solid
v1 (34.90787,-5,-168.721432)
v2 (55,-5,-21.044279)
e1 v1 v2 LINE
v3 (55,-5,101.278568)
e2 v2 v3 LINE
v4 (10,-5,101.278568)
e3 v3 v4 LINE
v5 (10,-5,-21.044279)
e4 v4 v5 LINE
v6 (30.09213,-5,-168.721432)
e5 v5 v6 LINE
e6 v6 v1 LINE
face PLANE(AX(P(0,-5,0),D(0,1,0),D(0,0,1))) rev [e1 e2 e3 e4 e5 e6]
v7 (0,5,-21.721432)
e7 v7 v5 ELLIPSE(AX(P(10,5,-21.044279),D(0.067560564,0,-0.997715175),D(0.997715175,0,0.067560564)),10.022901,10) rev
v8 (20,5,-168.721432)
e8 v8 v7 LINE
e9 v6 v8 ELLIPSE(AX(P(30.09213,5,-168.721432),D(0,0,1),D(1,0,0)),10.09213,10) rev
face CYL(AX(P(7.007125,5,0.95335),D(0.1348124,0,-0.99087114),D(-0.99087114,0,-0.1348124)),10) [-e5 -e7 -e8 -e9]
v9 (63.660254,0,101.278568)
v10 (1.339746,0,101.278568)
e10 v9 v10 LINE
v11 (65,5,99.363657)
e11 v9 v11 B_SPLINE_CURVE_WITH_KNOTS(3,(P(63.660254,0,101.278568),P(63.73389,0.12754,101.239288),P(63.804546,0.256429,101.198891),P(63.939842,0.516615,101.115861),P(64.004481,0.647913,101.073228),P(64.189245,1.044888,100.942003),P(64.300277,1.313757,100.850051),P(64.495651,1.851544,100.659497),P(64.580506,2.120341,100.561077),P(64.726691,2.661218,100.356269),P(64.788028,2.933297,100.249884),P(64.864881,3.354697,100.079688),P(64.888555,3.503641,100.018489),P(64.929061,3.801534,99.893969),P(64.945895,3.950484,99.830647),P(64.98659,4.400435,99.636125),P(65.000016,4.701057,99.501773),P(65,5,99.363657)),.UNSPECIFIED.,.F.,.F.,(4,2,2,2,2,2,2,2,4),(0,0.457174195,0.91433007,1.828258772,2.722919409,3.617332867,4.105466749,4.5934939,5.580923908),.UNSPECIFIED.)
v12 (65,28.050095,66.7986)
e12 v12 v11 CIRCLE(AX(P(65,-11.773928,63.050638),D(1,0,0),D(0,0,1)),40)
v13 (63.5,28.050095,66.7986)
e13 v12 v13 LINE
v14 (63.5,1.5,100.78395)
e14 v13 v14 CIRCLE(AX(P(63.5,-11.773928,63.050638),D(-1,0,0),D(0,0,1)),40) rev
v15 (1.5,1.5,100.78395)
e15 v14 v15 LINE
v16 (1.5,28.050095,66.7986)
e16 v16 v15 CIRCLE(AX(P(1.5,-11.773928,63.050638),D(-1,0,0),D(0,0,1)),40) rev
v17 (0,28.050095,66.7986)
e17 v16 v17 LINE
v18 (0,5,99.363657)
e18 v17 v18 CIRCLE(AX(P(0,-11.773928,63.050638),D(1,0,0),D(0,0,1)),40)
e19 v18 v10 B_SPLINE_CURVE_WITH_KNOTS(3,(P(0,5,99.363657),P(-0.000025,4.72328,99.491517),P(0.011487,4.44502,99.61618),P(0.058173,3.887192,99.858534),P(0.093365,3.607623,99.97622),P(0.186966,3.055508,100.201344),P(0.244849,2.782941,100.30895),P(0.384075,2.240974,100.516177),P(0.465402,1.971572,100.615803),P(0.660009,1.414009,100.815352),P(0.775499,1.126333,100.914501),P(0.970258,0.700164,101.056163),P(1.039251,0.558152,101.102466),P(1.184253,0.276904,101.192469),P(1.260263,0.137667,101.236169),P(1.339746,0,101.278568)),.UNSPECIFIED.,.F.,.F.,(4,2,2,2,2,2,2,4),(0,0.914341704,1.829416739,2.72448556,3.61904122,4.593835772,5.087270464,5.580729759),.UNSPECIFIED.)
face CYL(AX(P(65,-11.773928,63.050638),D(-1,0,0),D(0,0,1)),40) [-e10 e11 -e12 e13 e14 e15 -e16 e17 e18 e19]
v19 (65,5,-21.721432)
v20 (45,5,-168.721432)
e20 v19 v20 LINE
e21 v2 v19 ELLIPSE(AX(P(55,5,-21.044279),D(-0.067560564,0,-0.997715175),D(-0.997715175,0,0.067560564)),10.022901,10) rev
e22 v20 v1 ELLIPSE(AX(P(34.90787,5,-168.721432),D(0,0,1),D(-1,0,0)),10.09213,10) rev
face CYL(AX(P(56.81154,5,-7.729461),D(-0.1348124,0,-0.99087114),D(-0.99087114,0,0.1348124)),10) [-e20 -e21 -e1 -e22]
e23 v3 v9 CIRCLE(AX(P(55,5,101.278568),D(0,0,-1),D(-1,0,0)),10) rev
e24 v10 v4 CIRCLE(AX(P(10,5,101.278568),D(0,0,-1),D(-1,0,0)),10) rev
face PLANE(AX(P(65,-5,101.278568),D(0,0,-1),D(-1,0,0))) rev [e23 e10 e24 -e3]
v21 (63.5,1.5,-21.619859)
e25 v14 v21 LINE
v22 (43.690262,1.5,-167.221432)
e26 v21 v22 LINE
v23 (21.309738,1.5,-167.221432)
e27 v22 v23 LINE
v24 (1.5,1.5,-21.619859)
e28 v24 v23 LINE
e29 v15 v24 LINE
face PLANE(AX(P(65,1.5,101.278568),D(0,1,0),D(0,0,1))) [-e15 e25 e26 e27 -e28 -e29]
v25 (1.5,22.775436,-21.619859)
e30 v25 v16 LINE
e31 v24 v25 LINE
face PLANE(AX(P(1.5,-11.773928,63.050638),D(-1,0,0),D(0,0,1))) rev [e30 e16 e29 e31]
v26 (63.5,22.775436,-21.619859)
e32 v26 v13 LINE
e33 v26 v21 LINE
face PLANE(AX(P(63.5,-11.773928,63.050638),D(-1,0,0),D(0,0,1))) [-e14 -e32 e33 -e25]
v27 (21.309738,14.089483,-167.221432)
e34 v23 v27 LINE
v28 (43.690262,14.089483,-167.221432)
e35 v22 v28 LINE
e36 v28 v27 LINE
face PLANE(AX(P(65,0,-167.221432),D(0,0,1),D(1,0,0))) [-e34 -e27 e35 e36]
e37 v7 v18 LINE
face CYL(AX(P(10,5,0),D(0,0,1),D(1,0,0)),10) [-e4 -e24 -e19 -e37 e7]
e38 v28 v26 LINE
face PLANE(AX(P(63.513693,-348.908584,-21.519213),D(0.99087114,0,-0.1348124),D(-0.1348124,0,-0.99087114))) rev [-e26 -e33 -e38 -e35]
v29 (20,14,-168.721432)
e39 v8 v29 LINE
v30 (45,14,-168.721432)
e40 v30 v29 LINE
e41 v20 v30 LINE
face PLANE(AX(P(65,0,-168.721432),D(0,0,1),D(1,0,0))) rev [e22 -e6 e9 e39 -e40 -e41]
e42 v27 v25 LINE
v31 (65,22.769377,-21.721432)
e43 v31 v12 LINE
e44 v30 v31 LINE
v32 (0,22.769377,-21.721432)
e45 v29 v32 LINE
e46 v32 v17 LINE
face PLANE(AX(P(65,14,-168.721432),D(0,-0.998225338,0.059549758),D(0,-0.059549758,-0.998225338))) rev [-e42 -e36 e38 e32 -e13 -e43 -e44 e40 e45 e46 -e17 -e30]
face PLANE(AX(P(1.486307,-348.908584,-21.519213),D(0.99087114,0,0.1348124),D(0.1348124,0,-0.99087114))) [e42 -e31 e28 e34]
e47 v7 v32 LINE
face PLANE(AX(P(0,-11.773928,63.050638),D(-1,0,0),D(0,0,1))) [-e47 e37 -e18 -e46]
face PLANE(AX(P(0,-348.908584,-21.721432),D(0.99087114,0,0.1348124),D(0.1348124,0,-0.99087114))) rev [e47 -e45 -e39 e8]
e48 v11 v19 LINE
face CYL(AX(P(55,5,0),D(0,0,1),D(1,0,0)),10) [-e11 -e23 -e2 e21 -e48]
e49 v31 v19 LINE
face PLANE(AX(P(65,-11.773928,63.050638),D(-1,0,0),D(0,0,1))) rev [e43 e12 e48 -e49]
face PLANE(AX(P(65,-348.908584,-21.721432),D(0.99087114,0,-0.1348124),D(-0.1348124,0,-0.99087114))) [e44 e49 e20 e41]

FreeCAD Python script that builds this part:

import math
import FreeCAD as App
import Part
import Sketcher

V = App.Vector
Q = App.Units.Quantity


def edges_at(feature, points):
    """Names of the edges that pass closest to the given points."""
    edges = feature.Shape.Edges
    near = lambda p: min(range(len(edges)), key=lambda i: edges[i].distToShape(Part.Vertex(*p))[0])
    return sorted({f"Edge{near(p) + 1}" for p in points})


def faces_at(feature, points):
    """Names of the faces that lie closest to the given points."""
    faces = feature.Shape.Faces
    near = lambda p: min(range(len(faces)), key=lambda i: faces[i].distToShape(Part.Vertex(*p))[0])
    return sorted({f"Face{near(p) + 1}" for p in points})


def add_polygon(sketch, points):
    """Adds a closed chain of lines whose ends are joined by coincident constraints."""
    first, n = sketch.GeometryCount, len(points)
    for a, b in zip(points, points[1:] + points[:1]):
        sketch.addGeometry(Part.LineSegment(App.Vector(*a, 0), App.Vector(*b, 0)), False)
    for i in range(n):
        sketch.addConstraint(Sketcher.Constraint("Coincident", first + i, 2, first + (i + 1) % n, 1))

doc = App.newDocument("Part")
body = doc.addObject("PartDesign::Body", "Body")

# Sketch on YZ plane
sketch1 = body.newObject("Sketcher::SketchObject", "Sketch")
sketch1.AttachmentSupport = (doc.getObject("YZ_Plane"), [""])
sketch1.MapMode = "FlatFace"
sketch1.addGeometry([
    Part.LineSegment(V(0, 101.278568, 0), V(0, -168.721432, 0)),
    Part.LineSegment(V(0, -168.721432, 0), V(14, -168.721432, 0)),
    Part.LineSegment(V(14, -168.721432, 0), V(28.050095, 66.7986, 0)),
    Part.ArcOfCircle(Part.Circle(V(-11.773928, 63.050638, 0), V(0, 0, 1), 40), math.radians(5.376446), math.radians(72.881544)),
], False)
sketch1.addConstraint([
    Sketcher.Constraint("Coincident", 0, 2, 1, 1),
    Sketcher.Constraint("Coincident", 1, 2, 2, 1),
    Sketcher.Constraint("Coincident", 2, 2, 3, 1),
    Sketcher.Constraint("Coincident", 3, 2, 0, 1),
    Sketcher.Constraint("Vertical", 0),
    Sketcher.Constraint("Horizontal", 1),
    Sketcher.Constraint("PointOnObject", 0, 2, -2),
    Sketcher.Constraint("Radius", 3, Q("40 mm")),
    Sketcher.Constraint("DistanceX", 1, 1, 1, 2, Q("14 mm")),
    Sketcher.Constraint("DistanceY", 0, 2, 0, 1, Q("270 mm")),
    Sketcher.Constraint("DistanceY", -1, 1, 2, 2, Q("66.7986 mm")),
    Sketcher.Constraint("DistanceY", -1, 1, 3, 3, Q("63.050638 mm")),
    Sketcher.Constraint("DistanceY", 0, 2, -1, 1, Q("168.721432 mm")),
])
pad1 = body.newObject("PartDesign::Pad", "Pad")
pad1.Profile = sketch1
pad1.Length = 65

# Sketch on XZ plane
sketch2 = body.newObject("Sketcher::SketchObject", "Sketch001")
sketch2.AttachmentSupport = (doc.getObject("XZ_Plane"), [""])
sketch2.MapMode = "FlatFace"
add_polygon(sketch2, [(95.150987, -721.081189), (-75.150987, 530.638326), (-1179.870502, 380.336351), (-1009.568527, -871.383164)])  # lines 0-3
sketch2.addConstraint([
    Sketcher.Constraint("Perpendicular", 0, 1),
    Sketcher.Constraint("Perpendicular", 1, 2),
    Sketcher.Constraint("Perpendicular", 2, 3),
    Sketcher.Constraint("Distance", 0, Q("1263.251561 mm")),
    Sketcher.Constraint("DistanceY", -1, 1, 1, 2, Q("380.336351 mm")),
    Sketcher.Constraint("DistanceY", 3, 2, -1, 1, Q("721.081189 mm")),
    Sketcher.Constraint("DistanceX", 2, 2, 0, 2, Q("934.41754 mm")),
    Sketcher.Constraint("DistanceX", 0, 2, -1, 1, Q("75.150987 mm")),
])
pocket1 = body.newObject("PartDesign::Pocket", "Pocket")
pocket1.Profile = sketch2
pocket1.Type = "ThroughAll"
pocket1.Midplane = True

# Sketch on XZ plane
sketch3 = body.newObject("Sketcher::SketchObject", "Sketch002")
sketch3.AttachmentSupport = (doc.getObject("XZ_Plane"), [""])
sketch3.MapMode = "FlatFace"
add_polygon(sketch3, [(140.150987, 530.638326), (-30.150987, -721.081189), (1074.568527, -871.383164), (1244.870502, 380.336351)])  # lines 0-3
sketch3.addConstraint([
    Sketcher.Constraint("Perpendicular", 0, 1),
    Sketcher.Constraint("Perpendicular", 1, 2),
    Sketcher.Constraint("Perpendicular", 2, 3),
    Sketcher.Constraint("Distance", 0, Q("1263.251561 mm")),
    Sketcher.Constraint("DistanceY", 0, 2, -1, 1, Q("721.081189 mm")),
    Sketcher.Constraint("DistanceY", -1, 1, 2, 2, Q("380.336351 mm")),
    Sketcher.Constraint("DistanceX", 0, 2, 2, 2, Q("1275.02149 mm")),
    Sketcher.Constraint("DistanceX", 0, 2, -1, 1, Q("30.150987 mm")),
])
pocket2 = body.newObject("PartDesign::Pocket", "Pocket001")
pocket2.Profile = sketch3
pocket2.Type = "ThroughAll"
pocket2.Midplane = True
doc.recompute()

thickness = body.newObject("PartDesign::Thickness", "Thickness")
thickness.Base = (pocket2, faces_at(pocket2, [(32.5, 21.025, -50.961), (32.5, 19.255, 88.293)]))
thickness.Value = 1.5
thickness.Reversed = True
thickness.Join = "Intersection"

# Sketch on XZ plane
sketch4 = body.newObject("Sketcher::SketchObject", "Sketch003")
sketch4.AttachmentSupport = (doc.getObject("XZ_Plane"), [""])
sketch4.MapMode = "FlatFace"
add_polygon(sketch4, [(65, 101.278568), (0, 101.278568), (0, -21.721432), (20, -168.721432), (45, -168.721432), (65, -21.721432)])  # lines 0-5
sketch4.addConstraint([
    Sketcher.Constraint("Horizontal", 0),
    Sketcher.Constraint("Vertical", 1),
    Sketcher.Constraint("Horizontal", 3),
    Sketcher.Constraint("Vertical", 5),
    Sketcher.Constraint("PointOnObject", 0, 2, -2),
    Sketcher.Constraint("Horizontal", 1, 2, 4, 2),
    Sketcher.Constraint("Equal", 2, 4),
    Sketcher.Constraint("DistanceX", 0, 2, 0, 1, Q("65 mm")),
    Sketcher.Constraint("DistanceX", 3, 1, 3, 2, Q("25 mm")),
    Sketcher.Constraint("DistanceY", 1, 2, 1, 1, Q("123 mm")),
    Sketcher.Constraint("DistanceY", 2, 2, 1, 2, Q("147 mm")),
    Sketcher.Constraint("DistanceY", -1, 1, 0, 2, Q("101.278568 mm")),
])
pad2 = body.newObject("PartDesign::Pad", "Pad001")
pad2.Profile = sketch4
pad2.Length = 5
doc.recompute()

fillet = body.newObject("PartDesign::Fillet", "Fillet")
fillet.Base = (pad2, edges_at(pad2, [
    (65, -5, 39.779),
    (0, -5, 39.779),
    (10, -5, -95.221),
    (55, -5, -95.221),
]))
fillet.Radius = 10

doc.recompute()
